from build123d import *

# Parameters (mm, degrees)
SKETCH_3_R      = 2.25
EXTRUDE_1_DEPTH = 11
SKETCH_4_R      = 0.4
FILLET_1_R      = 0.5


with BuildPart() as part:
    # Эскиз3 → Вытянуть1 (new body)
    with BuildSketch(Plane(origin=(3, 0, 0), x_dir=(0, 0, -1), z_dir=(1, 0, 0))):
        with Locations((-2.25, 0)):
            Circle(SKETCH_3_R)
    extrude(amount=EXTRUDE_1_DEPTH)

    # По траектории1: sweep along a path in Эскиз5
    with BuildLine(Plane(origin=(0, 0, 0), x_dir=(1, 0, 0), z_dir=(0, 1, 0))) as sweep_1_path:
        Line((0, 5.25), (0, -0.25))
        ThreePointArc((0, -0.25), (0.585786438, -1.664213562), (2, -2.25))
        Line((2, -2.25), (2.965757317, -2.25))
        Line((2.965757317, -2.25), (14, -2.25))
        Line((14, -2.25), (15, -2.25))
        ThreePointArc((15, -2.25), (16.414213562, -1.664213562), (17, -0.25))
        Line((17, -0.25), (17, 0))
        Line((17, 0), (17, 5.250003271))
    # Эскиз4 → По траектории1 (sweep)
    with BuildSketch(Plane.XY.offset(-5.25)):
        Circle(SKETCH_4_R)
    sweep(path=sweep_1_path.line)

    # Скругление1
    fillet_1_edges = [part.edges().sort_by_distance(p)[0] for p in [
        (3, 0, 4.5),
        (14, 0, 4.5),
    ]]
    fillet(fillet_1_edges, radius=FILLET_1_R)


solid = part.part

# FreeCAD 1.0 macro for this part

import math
import FreeCAD as App
import Part
import Sketcher


def edges_at(feature, points):
    """Names of the edges that pass closest to the given points."""
    edges = feature.Shape.Edges
    near = lambda p: min(range(len(edges)), key=lambda i: edges[i].distToShape(Part.Vertex(*p))[0])
    return sorted({f"Edge{near(p) + 1}" for p in points})

doc = App.newDocument("Part")
body = doc.addObject("PartDesign::Body", "Body")

# Sketch on YZ plane
sketch1 = body.newObject("Sketcher::SketchObject", "Sketch")
sketch1.AttachmentSupport = (doc.getObject("YZ_Plane"), [""])
sketch1.MapMode = "FlatFace"
sketch1.AttachmentOffset = App.Placement(App.Vector(0, 0, 3), App.Rotation())
sketch1.addGeometry(Part.Circle(App.Vector(0, 2.2, 0), App.Vector(0, 0, 1), 2.2), False)
sketch1.addConstraint(Sketcher.Constraint("PointOnObject", 0, 3, -2))
sketch1.addConstraint(Sketcher.Constraint("Diameter", 0, 4.5))
sketch1.addConstraint(Sketcher.Constraint("DistanceY", -1, 1, 0, 3, 2.25))
pad1 = body.newObject("PartDesign::Pad", "Pad")
pad1.Profile = sketch1
pad1.Length = 11

# Sketch on XY plane
sketch2 = body.newObject("Sketcher::SketchObject", "Sketch001")
sketch2.AttachmentSupport = (doc.getObject("XY_Plane"), [""])
sketch2.MapMode = "FlatFace"
sketch2.AttachmentOffset = App.Placement(App.Vector(0, 0, -5.25), App.Rotation())
sketch2.addGeometry(Part.Circle(App.Vector(0, 0, 0), App.Vector(0, 0, 1), 0.4), False)
sketch2.addConstraint(Sketcher.Constraint("Coincident", 0, 3, -1, 1))
sketch2.addConstraint(Sketcher.Constraint("Diameter", 0, 0.8))

# Sketch on XZ plane
sketch3 = body.newObject("Sketcher::SketchObject", "Sketch002")
sketch3.AttachmentSupport = (doc.getObject("XZ_Plane"), [""])
sketch3.MapMode = "FlatFace"
sketch3.addGeometry(Part.LineSegment(App.Vector(0, -5.2, 0), App.Vector(0, 0.2, 0)), False)
sketch3.addGeometry(Part.ArcOfCircle(Part.Circle(App.Vector(2, 0.2, 0), App.Vector(0, 0, 1), 2), math.radians(90), math.radians(180)), False)
sketch3.addGeometry(Part.LineSegment(App.Vector(2, 2.2, 0), App.Vector(15, 2.2, 0)), False)
sketch3.addGeometry(Part.ArcOfCircle(Part.Circle(App.Vector(15, 0.2, 0), App.Vector(0, 0, 1), 2), math.radians(0), math.radians(90)), False)
sketch3.addGeometry(Part.LineSegment(App.Vector(17, 0.2, 0), App.Vector(17, -5.3, 0)), False)
sketch3.addConstraint(Sketcher.Constraint("Tangent", 0, 2, 1, 2))
sketch3.addConstraint(Sketcher.Constraint("Tangent", 1, 1, 2, 1))
sketch3.addConstraint(Sketcher.Constraint("Tangent", 2, 2, 3, 2))
sketch3.addConstraint(Sketcher.Constraint("Tangent", 3, 1, 4, 1))
sketch3.addConstraint(Sketcher.Constraint("Vertical", 0))
sketch3.addConstraint(Sketcher.Constraint("Horizontal", 2))
sketch3.addConstraint(Sketcher.Constraint("Vertical", 4))
sketch3.addConstraint(Sketcher.Constraint("Equal", 1, 3))
sketch3.addConstraint(Sketcher.Constraint("PointOnObject", 0, 1, -2))
sketch3.addConstraint(Sketcher.Constraint("Radius", 1, 2.0))
sketch3.addConstraint(Sketcher.Constraint("DistanceX", 2, 1, 2, 2, 13.0))
sketch3.addConstraint(Sketcher.Constraint("DistanceY", 0, 1, 0, 2, 5.5))
sketch3.addConstraint(Sketcher.Constraint("DistanceY", -1, 1, 1, 3, 0.25))
sketch3.addConstraint(Sketcher.Constraint("DistanceY", 4, 2, 4, 1, 5.500003))
doc.recompute()

additivepipe = body.newObject("PartDesign::AdditivePipe", "AdditivePipe")
additivepipe.Profile = sketch2
additivepipe.Spine = (sketch3, ["Edge1", "Edge2", "Edge3", "Edge4", "Edge5"])
doc.recompute()

fillet = body.newObject("PartDesign::Fillet", "Fillet")
fillet.Base = (additivepipe, edges_at(additivepipe, [(3, 0, 4.5), (14, 0, 4.5)]))
fillet.Radius = 0.5

doc.recompute()
